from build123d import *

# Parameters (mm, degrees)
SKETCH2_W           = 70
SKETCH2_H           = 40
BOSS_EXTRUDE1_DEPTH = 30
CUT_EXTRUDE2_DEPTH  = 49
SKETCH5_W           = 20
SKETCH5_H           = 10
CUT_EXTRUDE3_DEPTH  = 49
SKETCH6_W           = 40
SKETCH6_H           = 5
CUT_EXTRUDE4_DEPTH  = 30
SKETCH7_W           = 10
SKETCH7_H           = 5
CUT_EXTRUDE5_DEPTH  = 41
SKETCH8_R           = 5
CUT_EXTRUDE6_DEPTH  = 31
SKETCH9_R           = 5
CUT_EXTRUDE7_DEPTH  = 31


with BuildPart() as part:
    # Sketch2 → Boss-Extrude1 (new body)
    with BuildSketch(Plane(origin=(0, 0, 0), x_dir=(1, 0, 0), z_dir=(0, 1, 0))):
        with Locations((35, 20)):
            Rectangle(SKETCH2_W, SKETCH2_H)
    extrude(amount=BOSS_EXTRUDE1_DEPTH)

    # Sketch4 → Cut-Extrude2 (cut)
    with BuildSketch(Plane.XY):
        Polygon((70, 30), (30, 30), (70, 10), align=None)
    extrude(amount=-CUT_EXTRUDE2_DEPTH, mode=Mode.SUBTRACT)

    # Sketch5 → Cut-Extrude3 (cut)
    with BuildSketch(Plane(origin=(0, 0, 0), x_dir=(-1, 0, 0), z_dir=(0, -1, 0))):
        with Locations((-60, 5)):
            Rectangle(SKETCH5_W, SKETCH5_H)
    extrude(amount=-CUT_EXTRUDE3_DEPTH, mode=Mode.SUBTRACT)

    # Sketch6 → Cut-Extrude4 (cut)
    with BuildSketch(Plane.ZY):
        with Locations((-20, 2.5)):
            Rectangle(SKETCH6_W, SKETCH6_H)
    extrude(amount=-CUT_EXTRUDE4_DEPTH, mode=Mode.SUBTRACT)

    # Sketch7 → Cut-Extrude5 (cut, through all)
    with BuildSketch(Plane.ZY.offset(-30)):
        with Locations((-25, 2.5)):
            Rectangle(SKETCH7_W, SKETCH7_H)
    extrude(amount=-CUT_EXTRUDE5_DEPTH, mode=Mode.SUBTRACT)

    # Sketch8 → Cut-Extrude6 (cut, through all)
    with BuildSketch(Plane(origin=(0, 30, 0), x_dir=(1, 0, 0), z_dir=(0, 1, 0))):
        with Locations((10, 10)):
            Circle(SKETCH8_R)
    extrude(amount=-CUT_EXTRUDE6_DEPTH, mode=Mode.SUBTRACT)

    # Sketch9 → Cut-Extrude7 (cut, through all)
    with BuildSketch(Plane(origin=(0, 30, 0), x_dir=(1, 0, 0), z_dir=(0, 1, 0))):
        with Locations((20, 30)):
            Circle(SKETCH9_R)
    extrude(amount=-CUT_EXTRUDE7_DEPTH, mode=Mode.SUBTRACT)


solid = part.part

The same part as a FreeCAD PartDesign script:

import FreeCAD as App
import Part
import Sketcher
from FreeCAD import Vector

doc = App.newDocument("Part")
params = doc.addObject("Spreadsheet::Sheet", "Params")
for row, (alias, value) in enumerate([
    ("sketch1_width", "70 mm"),
    ("sketch1_height", "40 mm"),
    ("pad1_length", "30 mm"),
    ("sketch2_width", "40 mm"),
    ("sketch2_height", "20 mm"),
    ("pocket1_length", "49 mm"),
    ("sketch3_width", "20 mm"),
    ("sketch3_height", "10 mm"),
    ("pocket2_length", "49 mm"),
    ("sketch4_width", "5 mm"),
    ("sketch4_height", "40 mm"),
    ("pocket3_length", "30 mm"),
    ("sketch5_width", "5 mm"),
    ("sketch5_height", "10 mm"),
    ("sketch6_diameter", "10 mm"),
    ("sketch7_diameter", "10 mm"),
], start=1):
    params.set(f"A{row}", alias)
    params.set(f"B{row}", "=" + value)
    params.setAlias(f"B{row}", alias)

body = doc.addObject("PartDesign::Body", "Body")

# Sketch on XZ plane
sketch1 = doc.addObject("Sketcher::SketchObject", "Sketch")
body.addObject(sketch1)
sketch1.AttachmentSupport = (doc.XZ_Plane, [""])
sketch1.MapMode = "FlatFace"
sketch1.addGeometry([
    Part.LineSegment(Vector(0, -40, 0), Vector(0, 0, 0)),
    Part.LineSegment(Vector(0, 0, 0), Vector(70, 0, 0)),
    Part.LineSegment(Vector(70, 0, 0), Vector(70, -40, 0)),
    Part.LineSegment(Vector(70, -40, 0), Vector(0, -40, 0)),
], False)
sketch1.addConstraint([
    Sketcher.Constraint("Coincident", 0, 2, 1, 1),
    Sketcher.Constraint("Coincident", 1, 2, 2, 1),
    Sketcher.Constraint("Coincident", 2, 2, 3, 1),
    Sketcher.Constraint("Coincident", 3, 2, 0, 1),
    Sketcher.Constraint("Vertical", 0),
    Sketcher.Constraint("Horizontal", 1),
    Sketcher.Constraint("Vertical", 2),
    Sketcher.Constraint("Horizontal", 3),
    Sketcher.Constraint("Coincident", 0, 2, -1, 1),
    Sketcher.Constraint("DistanceX", 1, 1, 1, 2, 70.0),
    Sketcher.Constraint("DistanceY", 0, 1, 0, 2, 40.0),
])
sketch1.setExpression("Constraints[9]", "Params.sketch1_width")
sketch1.setExpression("Constraints[10]", "Params.sketch1_height")
pad1 = doc.addObject("PartDesign::Pad", "Pad")
body.addObject(pad1)
pad1.Profile = sketch1
pad1.setExpression("Length", "Params.pad1_length")
pad1.Reversed = True

# Sketch on XY plane
sketch2 = doc.addObject("Sketcher::SketchObject", "Sketch001")
body.addObject(sketch2)
sketch2.AttachmentSupport = (doc.XY_Plane, [""])
sketch2.MapMode = "FlatFace"
sketch2.addGeometry([
    Part.LineSegment(Vector(70, 30, 0), Vector(30, 30, 0)),
    Part.LineSegment(Vector(30, 30, 0), Vector(70, 10, 0)),
    Part.LineSegment(Vector(70, 10, 0), Vector(70, 30, 0)),
], False)
sketch2.addConstraint([
    Sketcher.Constraint("Coincident", 0, 2, 1, 1),
    Sketcher.Constraint("Coincident", 1, 2, 2, 1),
    Sketcher.Constraint("Coincident", 2, 2, 0, 1),
    Sketcher.Constraint("Horizontal", 0),
    Sketcher.Constraint("Vertical", 2),
    Sketcher.Constraint("DistanceX", 0, 2, 0, 1, 40.0),
    Sketcher.Constraint("DistanceY", 2, 1, 2, 2, 20.0),
    Sketcher.Constraint("DistanceX", -1, 1, 0, 2, 30.0),
    Sketcher.Constraint("DistanceY", -1, 1, 0, 2, 30.0),
])
sketch2.setExpression("Constraints[5]", "Params.sketch2_width")
sketch2.setExpression("Constraints[6]", "Params.sketch2_height")
pocket1 = doc.addObject("PartDesign::Pocket", "Pocket")
body.addObject(pocket1)
pocket1.Profile = sketch2
pocket1.setExpression("Length", "Params.pocket1_length")

# Sketch on XZ plane
sketch3 = doc.addObject("Sketcher::SketchObject", "Sketch002")
body.addObject(sketch3)
sketch3.AttachmentSupport = (doc.XZ_Plane, [""])
sketch3.MapMode = "FlatFace"
sketch3.addGeometry([
    Part.LineSegment(Vector(70, -10, 0), Vector(70, 0, 0)),
    Part.LineSegment(Vector(70, 0, 0), Vector(50, 0, 0)),
    Part.LineSegment(Vector(50, 0, 0), Vector(50, -10, 0)),
    Part.LineSegment(Vector(50, -10, 0), Vector(70, -10, 0)),
], False)
sketch3.addConstraint([
    Sketcher.Constraint("Coincident", 0, 2, 1, 1),
    Sketcher.Constraint("Coincident", 1, 2, 2, 1),
    Sketcher.Constraint("Coincident", 2, 2, 3, 1),
    Sketcher.Constraint("Coincident", 3, 2, 0, 1),
    Sketcher.Constraint("Vertical", 0),
    Sketcher.Constraint("Horizontal", 1),
    Sketcher.Constraint("Vertical", 2),
    Sketcher.Constraint("Horizontal", 3),
    Sketcher.Constraint("PointOnObject", 0, 2, -1),
    Sketcher.Constraint("DistanceX", 1, 2, 1, 1, 20.0),
    Sketcher.Constraint("DistanceY", 0, 1, 0, 2, 10.0),
    Sketcher.Constraint("DistanceX", -1, 1, 0, 2, 70.0),
])
sketch3.setExpression("Constraints[9]", "Params.sketch3_width")
sketch3.setExpression("Constraints[10]", "Params.sketch3_height")
pocket2 = doc.addObject("PartDesign::Pocket", "Pocket001")
body.addObject(pocket2)
pocket2.Profile = sketch3
pocket2.setExpression("Length", "Params.pocket2_length")

# Sketch on YZ plane
sketch4 = doc.addObject("Sketcher::SketchObject", "Sketch003")
body.addObject(sketch4)
sketch4.AttachmentSupport = (doc.YZ_Plane, [""])
sketch4.MapMode = "FlatFace"
sketch4.addGeometry([
    Part.LineSegment(Vector(5, -40, 0), Vector(0, -40, 0)),
    Part.LineSegment(Vector(0, -40, 0), Vector(0, 0, 0)),
    Part.LineSegment(Vector(0, 0, 0), Vector(5, 0, 0)),
    Part.LineSegment(Vector(5, 0, 0), Vector(5, -40, 0)),
], False)
sketch4.addConstraint([
    Sketcher.Constraint("Coincident", 0, 2, 1, 1),
    Sketcher.Constraint("Coincident", 1, 2, 2, 1),
    Sketcher.Constraint("Coincident", 2, 2, 3, 1),
    Sketcher.Constraint("Coincident", 3, 2, 0, 1),
    Sketcher.Constraint("Horizontal", 0),
    Sketcher.Constraint("Vertical", 1),
    Sketcher.Constraint("Horizontal", 2),
    Sketcher.Constraint("Vertical", 3),
    Sketcher.Constraint("Coincident", 1, 2, -1, 1),
    Sketcher.Constraint("DistanceX", 0, 2, 0, 1, 5.0),
    Sketcher.Constraint("DistanceY", 1, 1, 1, 2, 40.0),
])
sketch4.setExpression("Constraints[9]", "Params.sketch4_width")
sketch4.setExpression("Constraints[10]", "Params.sketch4_height")
pocket3 = doc.addObject("PartDesign::Pocket", "Pocket002")
body.addObject(pocket3)
pocket3.Profile = sketch4
pocket3.setExpression("Length", "Params.pocket3_length")
pocket3.Reversed = True

# Sketch on YZ plane
sketch5 = doc.addObject("Sketcher::SketchObject", "Sketch004")
body.addObject(sketch5)
sketch5.AttachmentSupport = (doc.YZ_Plane, [""])
sketch5.MapMode = "FlatFace"
sketch5.AttachmentOffset = App.Placement(Vector(0, 0, 30), App.Rotation())
sketch5.addGeometry([
    Part.LineSegment(Vector(5, -30, 0), Vector(0, -30, 0)),
    Part.LineSegment(Vector(0, -30, 0), Vector(0, -20, 0)),
    Part.LineSegment(Vector(0, -20, 0), Vector(5, -20, 0)),
    Part.LineSegment(Vector(5, -20, 0), Vector(5, -30, 0)),
], False)
sketch5.addConstraint([
    Sketcher.Constraint("Coincident", 0, 2, 1, 1),
    Sketcher.Constraint("Coincident", 1, 2, 2, 1),
    Sketcher.Constraint("Coincident", 2, 2, 3, 1),
    Sketcher.Constraint("Coincident", 3, 2, 0, 1),
    Sketcher.Constraint("Horizontal", 0),
    Sketcher.Constraint("Vertical", 1),
    Sketcher.Constraint("Horizontal", 2),
    Sketcher.Constraint("Vertical", 3),
    Sketcher.Constraint("PointOnObject", 0, 2, -2),
    Sketcher.Constraint("DistanceX", 0, 2, 0, 1, 5.0),
    Sketcher.Constraint("DistanceY", 1, 1, 1, 2, 10.0),
    Sketcher.Constraint("DistanceY", 0, 2, -1, 1, 30.0),
])
sketch5.setExpression("Constraints[9]", "Params.sketch5_width")
sketch5.setExpression("Constraints[10]", "Params.sketch5_height")
pocket4 = doc.addObject("PartDesign::Pocket", "Pocket003")
body.addObject(pocket4)
pocket4.Profile = sketch5
pocket4.Type = "ThroughAll"
pocket4.Reversed = True

# Sketch on XZ plane
sketch6 = doc.addObject("Sketcher::SketchObject", "Sketch005")
body.addObject(sketch6)
sketch6.AttachmentSupport = (doc.XZ_Plane, [""])
sketch6.MapMode = "FlatFace"
sketch6.AttachmentOffset = App.Placement(Vector(0, 0, -30), App.Rotation())
sketch6.addGeometry(Part.Circle(Vector(10, -10, 0), Vector(0, 0, 1), 5), False)
sketch6.addConstraint([
    Sketcher.Constraint("Diameter", 0, 10.0),
    Sketcher.Constraint("DistanceX", -1, 1, 0, 3, 10.0),
    Sketcher.Constraint("DistanceY", 0, 3, -1, 1, 10.0),
])
sketch6.setExpression("Constraints[0]", "Params.sketch6_diameter")
pocket5 = doc.addObject("PartDesign::Pocket", "Pocket004")
body.addObject(pocket5)
pocket5.Profile = sketch6
pocket5.Type = "ThroughAll"
pocket5.Reversed = True

# Sketch on XZ plane
sketch7 = doc.addObject("Sketcher::SketchObject", "Sketch006")
body.addObject(sketch7)
sketch7.AttachmentSupport = (doc.XZ_Plane, [""])
sketch7.MapMode = "FlatFace"
sketch7.AttachmentOffset = App.Placement(Vector(0, 0, -30), App.Rotation())
sketch7.addGeometry(Part.Circle(Vector(20, -30, 0), Vector(0, 0, 1), 5), False)
sketch7.addConstraint([
    Sketcher.Constraint("Diameter", 0, 10.0),
    Sketcher.Constraint("DistanceX", -1, 1, 0, 3, 20.0),
    Sketcher.Constraint("DistanceY", 0, 3, -1, 1, 30.0),
])
sketch7.setExpression("Constraints[0]", "Params.sketch7_diameter")
pocket6 = doc.addObject("PartDesign::Pocket", "Pocket005")
body.addObject(pocket6)
pocket6.Profile = sketch7
pocket6.Type = "ThroughAll"
pocket6.Reversed = True

doc.recompute()
